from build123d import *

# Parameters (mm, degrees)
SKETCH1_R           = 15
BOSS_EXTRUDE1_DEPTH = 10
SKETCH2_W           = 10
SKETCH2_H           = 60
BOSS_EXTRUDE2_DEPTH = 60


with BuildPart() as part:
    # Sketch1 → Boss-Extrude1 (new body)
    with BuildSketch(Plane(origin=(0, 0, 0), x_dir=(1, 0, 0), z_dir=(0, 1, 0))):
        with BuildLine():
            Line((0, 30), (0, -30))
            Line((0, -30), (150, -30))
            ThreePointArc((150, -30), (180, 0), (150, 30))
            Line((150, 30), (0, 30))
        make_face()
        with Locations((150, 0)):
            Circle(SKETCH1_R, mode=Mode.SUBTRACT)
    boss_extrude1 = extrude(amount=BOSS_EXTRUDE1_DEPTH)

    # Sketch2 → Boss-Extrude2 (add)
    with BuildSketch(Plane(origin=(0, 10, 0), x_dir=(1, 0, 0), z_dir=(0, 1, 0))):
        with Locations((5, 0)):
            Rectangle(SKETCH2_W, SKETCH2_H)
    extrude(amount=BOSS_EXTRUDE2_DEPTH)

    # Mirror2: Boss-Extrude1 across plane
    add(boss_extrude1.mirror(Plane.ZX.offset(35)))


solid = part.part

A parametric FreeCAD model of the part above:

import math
import FreeCAD as App
import Part
import Sketcher
Q = App.Units.Quantity


def add_polygon(sketch, points):
    """Adds a closed chain of lines whose ends are joined by coincident constraints."""
    first, n = sketch.GeometryCount, len(points)
    for a, b in zip(points, points[1:] + points[:1]):
        sketch.addGeometry(Part.LineSegment(App.Vector(*a, 0), App.Vector(*b, 0)), False)
    for i in range(n):
        sketch.addConstraint(Sketcher.Constraint("Coincident", first + i, 2, first + (i + 1) % n, 1))

doc = App.newDocument("Part")
body = doc.addObject("PartDesign::Body", "Body")

# Sketch on XZ plane
sketch1 = body.newObject("Sketcher::SketchObject", "Sketch")
sketch1.AttachmentSupport = (doc.getObject("XZ_Plane"), [""])
sketch1.MapMode = "FlatFace"
sketch1.addGeometry([
    Part.LineSegment(App.Vector(0, -30, 0), App.Vector(0, 30, 0)),  # 0
    Part.LineSegment(App.Vector(0, 30, 0), App.Vector(150, 30, 0)),  # 1
    Part.ArcOfCircle(Part.Circle(App.Vector(150, 0, 0), App.Vector(0, 0, 1), 30), math.radians(-90), math.radians(90)),  # 2
    Part.LineSegment(App.Vector(150, -30, 0), App.Vector(0, -30, 0)),  # 3
    Part.Circle(App.Vector(150, 0, 0), App.Vector(0, 0, 1), 15),  # 4
], False)
sketch1.addConstraint([
    Sketcher.Constraint("Coincident", 0, 2, 1, 1),
    Sketcher.Constraint("Tangent", 1, 2, 2, 2),
    Sketcher.Constraint("Tangent", 2, 1, 3, 1),
    Sketcher.Constraint("Coincident", 3, 2, 0, 1),
    Sketcher.Constraint("Vertical", 0),
    Sketcher.Constraint("Horizontal", 1),
    Sketcher.Constraint("Horizontal", 3),
    Sketcher.Constraint("Coincident", 4, 3, 2, 3),
    Sketcher.Constraint("Symmetric", 0, 2, 3, 2, -1, 1),
    Sketcher.Constraint("Diameter", 4, Q("30 mm")),
    Sketcher.Constraint("Radius", 2, Q("30 mm")),
    Sketcher.Constraint("DistanceX", 1, 1, 1, 2, Q("150 mm")),
])
pad1 = body.newObject("PartDesign::Pad", "Pad")
pad1.Profile = sketch1
pad1.Length = 10
pad1.Reversed = True

# Sketch on XZ plane
sketch2 = body.newObject("Sketcher::SketchObject", "Sketch001")
sketch2.AttachmentSupport = (doc.getObject("XZ_Plane"), [""])
sketch2.MapMode = "FlatFace"
sketch2.AttachmentOffset = App.Placement(App.Vector(0, 0, -10), App.Rotation())
add_polygon(sketch2, [(0, -30), (0, 30), (10, 30), (10, -30)])  # lines 0-3
sketch2.addConstraint([
    Sketcher.Constraint("Vertical", 0),
    Sketcher.Constraint("Horizontal", 1),
    Sketcher.Constraint("Vertical", 2),
    Sketcher.Constraint("Horizontal", 3),
    Sketcher.Constraint("Symmetric", 0, 2, 3, 2, -1, 1),
    Sketcher.Constraint("DistanceX", 1, 1, 1, 2, Q("10 mm")),
    Sketcher.Constraint("DistanceY", 0, 1, 0, 2, Q("60 mm")),
])
pad2 = body.newObject("PartDesign::Pad", "Pad001")
pad2.Profile = sketch2
pad2.Length = 60
pad2.Reversed = True
doc.recompute()

datumplane = body.newObject("PartDesign::Plane", "DatumPlane")
datumplane.AttachmentSupport = (doc.getObject("XZ_Plane"), [""])
datumplane.MapMode = "FlatFace"
datumplane.AttachmentOffset = App.Placement(App.Vector(0, 0, -35), App.Rotation())
mirrored = body.newObject("PartDesign::Mirrored", "Mirrored")
mirrored.Originals = [pad1]
mirrored.MirrorPlane = (datumplane, [""])
body.Tip = mirrored

doc.recompute()
